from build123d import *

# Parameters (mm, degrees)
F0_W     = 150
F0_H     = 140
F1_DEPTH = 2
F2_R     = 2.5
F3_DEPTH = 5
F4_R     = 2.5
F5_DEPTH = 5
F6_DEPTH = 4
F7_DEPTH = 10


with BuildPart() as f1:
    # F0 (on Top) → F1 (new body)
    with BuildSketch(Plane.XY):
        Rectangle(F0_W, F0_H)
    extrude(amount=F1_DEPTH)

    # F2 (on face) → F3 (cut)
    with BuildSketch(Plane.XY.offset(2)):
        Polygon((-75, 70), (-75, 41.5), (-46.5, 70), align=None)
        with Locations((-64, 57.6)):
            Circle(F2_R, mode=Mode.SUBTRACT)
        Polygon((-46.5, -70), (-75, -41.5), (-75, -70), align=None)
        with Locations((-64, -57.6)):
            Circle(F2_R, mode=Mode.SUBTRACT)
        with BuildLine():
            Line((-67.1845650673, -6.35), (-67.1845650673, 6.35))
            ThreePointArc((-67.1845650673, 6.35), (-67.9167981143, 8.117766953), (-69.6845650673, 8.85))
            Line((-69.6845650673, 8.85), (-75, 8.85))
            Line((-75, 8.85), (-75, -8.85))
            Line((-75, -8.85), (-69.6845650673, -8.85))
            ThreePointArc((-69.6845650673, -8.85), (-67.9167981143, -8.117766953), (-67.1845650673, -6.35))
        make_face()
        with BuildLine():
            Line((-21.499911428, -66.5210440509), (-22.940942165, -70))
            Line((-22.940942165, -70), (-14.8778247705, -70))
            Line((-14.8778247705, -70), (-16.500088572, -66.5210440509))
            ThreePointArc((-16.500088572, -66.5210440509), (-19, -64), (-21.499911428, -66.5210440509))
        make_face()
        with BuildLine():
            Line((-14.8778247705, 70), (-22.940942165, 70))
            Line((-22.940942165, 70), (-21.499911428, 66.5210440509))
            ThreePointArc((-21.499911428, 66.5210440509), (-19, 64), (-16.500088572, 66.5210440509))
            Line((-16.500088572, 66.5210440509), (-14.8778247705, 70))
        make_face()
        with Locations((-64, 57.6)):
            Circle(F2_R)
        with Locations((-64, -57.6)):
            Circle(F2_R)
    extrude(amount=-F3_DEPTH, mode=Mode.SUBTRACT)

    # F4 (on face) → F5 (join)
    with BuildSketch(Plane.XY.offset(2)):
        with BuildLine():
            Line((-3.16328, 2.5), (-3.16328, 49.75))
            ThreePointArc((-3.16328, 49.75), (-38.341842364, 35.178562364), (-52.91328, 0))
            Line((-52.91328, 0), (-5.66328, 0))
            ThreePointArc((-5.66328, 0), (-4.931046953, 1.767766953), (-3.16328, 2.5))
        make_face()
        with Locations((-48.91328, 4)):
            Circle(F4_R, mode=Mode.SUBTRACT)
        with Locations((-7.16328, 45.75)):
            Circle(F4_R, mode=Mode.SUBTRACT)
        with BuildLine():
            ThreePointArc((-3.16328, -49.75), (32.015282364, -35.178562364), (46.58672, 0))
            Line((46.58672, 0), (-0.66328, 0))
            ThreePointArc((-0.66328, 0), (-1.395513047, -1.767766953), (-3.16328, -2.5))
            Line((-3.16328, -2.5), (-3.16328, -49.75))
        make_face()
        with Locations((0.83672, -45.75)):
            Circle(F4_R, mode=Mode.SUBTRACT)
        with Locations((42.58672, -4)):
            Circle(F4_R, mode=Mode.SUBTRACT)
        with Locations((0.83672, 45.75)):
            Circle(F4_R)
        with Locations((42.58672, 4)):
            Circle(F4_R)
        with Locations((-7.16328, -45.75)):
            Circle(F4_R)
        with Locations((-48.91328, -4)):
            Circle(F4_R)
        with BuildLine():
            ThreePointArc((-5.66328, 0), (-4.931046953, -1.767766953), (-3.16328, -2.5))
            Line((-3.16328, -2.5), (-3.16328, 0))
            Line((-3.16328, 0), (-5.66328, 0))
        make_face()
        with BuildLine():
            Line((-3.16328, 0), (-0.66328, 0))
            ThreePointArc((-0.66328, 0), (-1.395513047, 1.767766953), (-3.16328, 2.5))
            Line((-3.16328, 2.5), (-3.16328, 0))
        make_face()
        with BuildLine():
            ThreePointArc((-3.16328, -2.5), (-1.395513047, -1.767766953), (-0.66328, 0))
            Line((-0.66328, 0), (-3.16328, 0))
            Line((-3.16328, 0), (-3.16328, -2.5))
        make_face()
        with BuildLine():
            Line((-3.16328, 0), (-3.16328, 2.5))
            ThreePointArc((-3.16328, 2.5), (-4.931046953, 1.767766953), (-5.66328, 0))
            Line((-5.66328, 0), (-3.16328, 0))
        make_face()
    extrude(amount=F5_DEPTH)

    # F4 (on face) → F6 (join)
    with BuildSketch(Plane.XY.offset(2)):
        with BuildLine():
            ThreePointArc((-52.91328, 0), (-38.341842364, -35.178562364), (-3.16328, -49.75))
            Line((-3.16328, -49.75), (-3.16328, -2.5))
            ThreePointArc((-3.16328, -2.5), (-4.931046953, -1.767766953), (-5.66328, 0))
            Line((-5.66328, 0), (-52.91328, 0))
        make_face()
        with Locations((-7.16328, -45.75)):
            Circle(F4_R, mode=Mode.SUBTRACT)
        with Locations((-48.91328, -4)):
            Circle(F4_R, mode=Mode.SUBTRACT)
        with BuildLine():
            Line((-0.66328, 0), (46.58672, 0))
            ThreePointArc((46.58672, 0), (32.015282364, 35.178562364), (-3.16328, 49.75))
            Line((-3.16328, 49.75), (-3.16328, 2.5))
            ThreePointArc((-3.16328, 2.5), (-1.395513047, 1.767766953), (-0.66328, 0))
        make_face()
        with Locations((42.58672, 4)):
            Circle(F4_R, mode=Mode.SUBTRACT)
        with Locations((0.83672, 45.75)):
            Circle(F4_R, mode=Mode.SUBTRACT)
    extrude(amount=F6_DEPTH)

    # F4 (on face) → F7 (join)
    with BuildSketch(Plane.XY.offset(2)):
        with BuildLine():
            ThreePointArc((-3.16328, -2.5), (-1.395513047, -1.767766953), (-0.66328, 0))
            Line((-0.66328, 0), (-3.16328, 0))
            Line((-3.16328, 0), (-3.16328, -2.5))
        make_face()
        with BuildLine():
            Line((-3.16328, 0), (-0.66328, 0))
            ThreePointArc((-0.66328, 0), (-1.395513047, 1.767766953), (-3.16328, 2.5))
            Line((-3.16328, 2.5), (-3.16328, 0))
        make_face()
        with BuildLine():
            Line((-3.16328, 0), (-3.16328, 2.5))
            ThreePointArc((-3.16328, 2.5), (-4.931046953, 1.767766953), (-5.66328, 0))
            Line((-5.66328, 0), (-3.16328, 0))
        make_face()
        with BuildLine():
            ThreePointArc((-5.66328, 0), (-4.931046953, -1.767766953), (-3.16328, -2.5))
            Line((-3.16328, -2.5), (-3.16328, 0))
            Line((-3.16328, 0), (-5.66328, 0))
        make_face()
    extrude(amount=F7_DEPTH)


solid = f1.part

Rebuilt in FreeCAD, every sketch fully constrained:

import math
import FreeCAD as App
import Part
import Sketcher
Q = App.Units.Quantity


def add_polygon(sketch, points):
    """Adds a closed chain of lines whose ends are joined by coincident constraints."""
    first, n = sketch.GeometryCount, len(points)
    for a, b in zip(points, points[1:] + points[:1]):
        sketch.addGeometry(Part.LineSegment(App.Vector(*a, 0), App.Vector(*b, 0)), False)
    for i in range(n):
        sketch.addConstraint(Sketcher.Constraint("Coincident", first + i, 2, first + (i + 1) % n, 1))

doc = App.newDocument("Part")
params = doc.addObject("Spreadsheet::Sheet", "Params")
for row, (alias, value) in enumerate([
    ("sketch1_width", "150 mm"),
    ("sketch1_height", "140 mm"),
    ("pad1_length", "2 mm"),
    ("sketch2_radius", "2.5 mm"),
    ("sketch2_width", "28.5 mm"),
    ("sketch2_height", "12.7 mm"),
    ("pocket1_length", "5 mm"),
    ("sketch3_diameter", "5 mm"),
    ("sketch3_radius", "49.75 mm"),
    ("pad2_length", "5 mm"),
    ("sketch4_diameter", "5 mm"),
    ("sketch4_radius", "49.75 mm"),
    ("pad3_length", "4 mm"),
    ("sketch5_radius", "2.5 mm"),
    ("pad4_length", "10 mm"),
], start=1):
    params.set(f"A{row}", alias)
    params.set(f"B{row}", "=" + value)
    params.setAlias(f"B{row}", alias)

body = doc.addObject("PartDesign::Body", "Body")

sketch1 = body.newObject("Sketcher::SketchObject", "Sketch")
sketch1.AttachmentSupport = (doc.getObject("XY_Plane"), [""])
sketch1.MapMode = "FlatFace"
add_polygon(sketch1, [(-75, 70), (-75, -70), (75, -70), (75, 70)])
sketch1.addConstraint([
    Sketcher.Constraint("Vertical", 0),
    Sketcher.Constraint("Horizontal", 1),
    Sketcher.Constraint("Vertical", 2),
    Sketcher.Constraint("Horizontal", 3),
    Sketcher.Constraint("Symmetric", 0, 2, 2, 2, -1, 1),
    Sketcher.Constraint("DistanceX", 1, 1, 1, 2, Q("150 mm")),
    Sketcher.Constraint("DistanceY", 0, 2, 0, 1, Q("140 mm")),
])
sketch1.setExpression("Constraints[9]", "Params.sketch1_width")
sketch1.setExpression("Constraints[10]", "Params.sketch1_height")
pad1 = body.newObject("PartDesign::Pad", "Pad")
pad1.Profile = sketch1
pad1.setExpression("Length", "Params.pad1_length")

sketch2 = body.newObject("Sketcher::SketchObject", "Sketch001")
sketch2.AttachmentSupport = (doc.getObject("XY_Plane"), [""])
sketch2.MapMode = "FlatFace"
sketch2.AttachmentOffset = App.Placement(App.Vector(0, 0, 2), App.Rotation())
add_polygon(sketch2, [(-75, 70), (-75, 41.5), (-46.5, 70)])
add_polygon(sketch2, [(-46.5, -70), (-75, -41.5), (-75, -70)])
sketch2.addGeometry(Part.LineSegment(App.Vector(-67.184565, -6.35, 0), App.Vector(-67.184565, 6.35, 0)), False)
sketch2.addGeometry(Part.ArcOfCircle(Part.Circle(App.Vector(-69.684565, 6.35, 0), App.Vector(0, 0, 1), 2.5), math.radians(0), math.radians(90)), False)
sketch2.addGeometry(Part.LineSegment(App.Vector(-69.684565, 8.85, 0), App.Vector(-75, 8.85, 0)), False)
sketch2.addGeometry(Part.LineSegment(App.Vector(-75, 8.85, 0), App.Vector(-75, -8.85, 0)), False)
sketch2.addGeometry(Part.LineSegment(App.Vector(-75, -8.85, 0), App.Vector(-69.684565, -8.85, 0)), False)
sketch2.addGeometry(Part.ArcOfCircle(Part.Circle(App.Vector(-69.684565, -6.35, 0), App.Vector(0, 0, 1), 2.5), math.radians(-90), math.radians(0)), False)
sketch2.addGeometry(Part.LineSegment(App.Vector(-21.499911, -66.521044, 0), App.Vector(-22.940942, -70, 0)), False)
sketch2.addGeometry(Part.LineSegment(App.Vector(-22.940942, -70, 0), App.Vector(-14.877825, -70, 0)), False)
sketch2.addGeometry(Part.LineSegment(App.Vector(-14.877825, -70, 0), App.Vector(-16.500089, -66.521044, 0)), False)
sketch2.addGeometry(Part.ArcOfCircle(Part.Circle(App.Vector(-19, -66.5, 0), App.Vector(0, 0, 1), 2.5), math.radians(-0.4823), math.radians(180.4823)), False)
sketch2.addGeometry(Part.LineSegment(App.Vector(-14.877825, 70, 0), App.Vector(-22.940942, 70, 0)), False)
sketch2.addGeometry(Part.LineSegment(App.Vector(-22.940942, 70, 0), App.Vector(-21.499911, 66.521044, 0)), False)
sketch2.addGeometry(Part.ArcOfCircle(Part.Circle(App.Vector(-19, 66.5, 0), App.Vector(0, 0, 1), 2.5), math.radians(179.5177), math.radians(360.4823)), False)
sketch2.addGeometry(Part.LineSegment(App.Vector(-16.500089, 66.521044, 0), App.Vector(-14.877825, 70, 0)), False)
sketch2.addConstraint([
    Sketcher.Constraint("Tangent", 6, 2, 7, 1),
    Sketcher.Constraint("Tangent", 7, 2, 8, 1),
    Sketcher.Constraint("Coincident", 8, 2, 9, 1),
    Sketcher.Constraint("Coincident", 9, 2, 10, 1),
    Sketcher.Constraint("Tangent", 10, 2, 11, 1),
    Sketcher.Constraint("Tangent", 11, 2, 6, 1),
    Sketcher.Constraint("Coincident", 12, 2, 13, 1),
    Sketcher.Constraint("Coincident", 13, 2, 14, 1),
    Sketcher.Constraint("Coincident", 14, 2, 15, 1),
    Sketcher.Constraint("Coincident", 15, 2, 12, 1),
    Sketcher.Constraint("Coincident", 16, 2, 17, 1),
    Sketcher.Constraint("Coincident", 17, 2, 18, 1),
    Sketcher.Constraint("Coincident", 18, 2, 19, 1),
    Sketcher.Constraint("Coincident", 19, 2, 16, 1),
    Sketcher.Constraint("Vertical", 0),
    Sketcher.Constraint("Horizontal", 2),
    Sketcher.Constraint("Vertical", 4),
    Sketcher.Constraint("Horizontal", 5),
    Sketcher.Constraint("Vertical", 6),
    Sketcher.Constraint("Horizontal", 8),
    Sketcher.Constraint("Vertical", 9),
    Sketcher.Constraint("Horizontal", 10),
    Sketcher.Constraint("Horizontal", 13),
    Sketcher.Constraint("Horizontal", 16),
    Sketcher.Constraint("Equal", 7, 11),
    Sketcher.Constraint("Equal", 11, 15),
    Sketcher.Constraint("Equal", 15, 18),
    Sketcher.Constraint("Symmetric", 15, 3, 18, 3, -1),
    Sketcher.Constraint("Symmetric", 0, 2, 3, 2, -1),
    Sketcher.Constraint("Symmetric", 1, 2, 5, 2, -1),
    Sketcher.Constraint("Symmetric", 12, 2, 16, 2, -1),
    Sketcher.Constraint("Perpendicular", 1, 3),
    Sketcher.Constraint("Horizontal", 5, 2, 12, 2),
    Sketcher.Constraint("Horizontal", 14, 2, 15, 2),
    Sketcher.Constraint("Horizontal", 17, 2, 18, 2),
    Sketcher.Constraint("Vertical", 4, 2, 8, 2),
    Sketcher.Constraint("Vertical", 15, 2, 17, 2),
    Sketcher.Constraint("Vertical", 13, 2, 19, 2),
    Sketcher.Constraint("Radius", 7, Q("2.5 mm")),
    Sketcher.Constraint("Angle", 14, Q("115 deg")),
    Sketcher.Constraint("DistanceX", 2, 2, 2, 1, Q("28.5 mm")),
    Sketcher.Constraint("DistanceY", 6, 1, 6, 2, Q("12.7 mm")),
    Sketcher.Constraint("DistanceX", 15, 3, -1, 1, Q("19 mm")),
    Sketcher.Constraint("DistanceX", 0, 2, -1, 1, Q("75 mm")),
    Sketcher.Constraint("DistanceY", -1, 1, 1, 2, Q("70 mm")),
    Sketcher.Constraint("Angle", 12, Q("-112.5 deg")),
    Sketcher.Constraint("DistanceY", 15, 3, 18, 3, Q("133 mm")),
    Sketcher.Constraint("DistanceY", -1, 1, 7, 3, Q("6.35 mm")),
    Sketcher.Constraint("DistanceX", 8, 2, 8, 1, Q("5.315435 mm")),
    Sketcher.Constraint("DistanceX", 13, 1, 13, 2, Q("8.063117 mm")),
])
sketch2.setExpression("Constraints[44]", "Params.sketch2_radius")
sketch2.setExpression("Constraints[46]", "Params.sketch2_width")
sketch2.setExpression("Constraints[47]", "Params.sketch2_height")
pocket1 = body.newObject("PartDesign::Pocket", "Pocket")
pocket1.Profile = sketch2
pocket1.setExpression("Length", "Params.pocket1_length")

sketch3 = body.newObject("Sketcher::SketchObject", "Sketch002")
sketch3.AttachmentSupport = (doc.getObject("XY_Plane"), [""])
sketch3.MapMode = "FlatFace"
sketch3.AttachmentOffset = App.Placement(App.Vector(0, 0, 2), App.Rotation())
sketch3.addGeometry([
    Part.LineSegment(App.Vector(-3.16328, 2.5, 0), App.Vector(-3.16328, 49.75, 0)),
    Part.ArcOfCircle(Part.Circle(App.Vector(-3.16328, 0, 0), App.Vector(0, 0, 1), 49.75), math.radians(90), math.radians(180)),
    Part.LineSegment(App.Vector(-52.91328, 0, 0), App.Vector(-5.66328, 0, 0)),
    Part.ArcOfCircle(Part.Circle(App.Vector(-3.16328, 0, 0), App.Vector(0, 0, 1), 2.5), math.radians(180), math.radians(270)),
    Part.LineSegment(App.Vector(-3.16328, -2.5, 0), App.Vector(-3.16328, -49.75, 0)),
    Part.ArcOfCircle(Part.Circle(App.Vector(-3.16328, 0, 0), App.Vector(0, 0, 1), 49.75), math.radians(-90), math.radians(0)),
    Part.LineSegment(App.Vector(46.58672, 0, 0), App.Vector(-0.66328, 0, 0)),
    Part.ArcOfCircle(Part.Circle(App.Vector(-3.16328, 0, 0), App.Vector(0, 0, 1), 2.5), math.radians(0), math.radians(90)),
    Part.Circle(App.Vector(-48.91328, 4, 0), App.Vector(0, 0, 1), 2.5),
    Part.Circle(App.Vector(-7.16328, 45.75, 0), App.Vector(0, 0, 1), 2.5),
    Part.Circle(App.Vector(42.58672, -4, 0), App.Vector(0, 0, 1), 2.5),
    Part.Circle(App.Vector(0.83672, -45.75, 0), App.Vector(0, 0, 1), 2.5),
    Part.Circle(App.Vector(0.83672, 45.75, 0), App.Vector(0, 0, 1), 2.5),
    Part.Circle(App.Vector(42.58672, 4, 0), App.Vector(0, 0, 1), 2.5),
    Part.Circle(App.Vector(-7.16328, -45.75, 0), App.Vector(0, 0, 1), 2.5),
    Part.Circle(App.Vector(-48.91328, -4, 0), App.Vector(0, 0, 1), 2.5),
], False)
sketch3.addConstraint([
    Sketcher.Constraint("Coincident", 0, 2, 1, 1),
    Sketcher.Constraint("Coincident", 1, 2, 2, 1),
    Sketcher.Constraint("Coincident", 2, 2, 3, 1),
    Sketcher.Constraint("Coincident", 3, 2, 4, 1),
    Sketcher.Constraint("Coincident", 4, 2, 5, 1),
    Sketcher.Constraint("Coincident", 5, 2, 6, 1),
    Sketcher.Constraint("Coincident", 6, 2, 7, 1),
    Sketcher.Constraint("Coincident", 7, 2, 0, 1),
    Sketcher.Constraint("Vertical", 0),
    Sketcher.Constraint("Horizontal", 2),
    Sketcher.Constraint("Vertical", 4),
    Sketcher.Constraint("Horizontal", 6),
    Sketcher.Constraint("Coincident", 3, 3, 1, 3),
    Sketcher.Constraint("Coincident", 5, 3, 1, 3),
    Sketcher.Constraint("Coincident", 7, 3, 1, 3),
    Sketcher.Constraint("Equal", 1, 5),
    Sketcher.Constraint("Equal", 3, 7),
    Sketcher.Constraint("Equal", 7, 8),
    Sketcher.Constraint("Equal", 8, 9),
    Sketcher.Constraint("Equal", 9, 10),
    Sketcher.Constraint("Equal", 10, 11),
    Sketcher.Constraint("Equal", 11, 12),
    Sketcher.Constraint("Equal", 12, 13),
    Sketcher.Constraint("Equal", 13, 14),
    Sketcher.Constraint("Equal", 14, 15),
    Sketcher.Constraint("Symmetric", 11, 3, 12, 3, -1),
    Sketcher.Constraint("Symmetric", 10, 3, 13, 3, -1),
    Sketcher.Constraint("Symmetric", 9, 3, 14, 3, -1),
    Sketcher.Constraint("Symmetric", 8, 3, 15, 3, -1),
    Sketcher.Constraint("Symmetric", 0, 2, 4, 2, -1),
    Sketcher.Constraint("PointOnObject", 1, 2, -1),
    Sketcher.Constraint("PointOnObject", 5, 2, -1),
    Sketcher.Constraint("Horizontal", 9, 3, 12, 3),
    Sketcher.Constraint("Horizontal", 8, 3, 13, 3),
    Sketcher.Constraint("Vertical", 7, 3, 0, 2),
    Sketcher.Constraint("Diameter", 8, Q("5 mm")),
    Sketcher.Constraint("Radius", 1, Q("49.75 mm")),
    Sketcher.Constraint("DistanceY", -1, 1, 8, 3, Q("4 mm")),
    Sketcher.Constraint("DistanceX", 9, 3, 1, 3, Q("4 mm")),
    Sketcher.Constraint("DistanceX", 1, 3, 11, 3, Q("4 mm")),
    Sketcher.Constraint("DistanceY", 9, 3, 0, 2, Q("4 mm")),
    Sketcher.Constraint("DistanceX", 1, 2, 8, 3, Q("4 mm")),
    Sketcher.Constraint("DistanceX", 10, 3, 5, 2, Q("4 mm")),
    Sketcher.Constraint("DistanceX", 1, 3, -1, 1, Q("3.16328 mm")),
])
sketch3.setExpression("Constraints[35]", "Params.sketch3_diameter")
sketch3.setExpression("Constraints[36]", "Params.sketch3_radius")
pad2 = body.newObject("PartDesign::Pad", "Pad001")
pad2.Profile = sketch3
pad2.setExpression("Length", "Params.pad2_length")

sketch4 = body.newObject("Sketcher::SketchObject", "Sketch003")
sketch4.AttachmentSupport = (doc.getObject("XY_Plane"), [""])
sketch4.MapMode = "FlatFace"
sketch4.AttachmentOffset = App.Placement(App.Vector(0, 0, 2), App.Rotation())
sketch4.addGeometry([
    Part.ArcOfCircle(Part.Circle(App.Vector(-3.16328, 0, 0), App.Vector(0, 0, 1), 49.75), math.radians(180), math.radians(270)),
    Part.LineSegment(App.Vector(-3.16328, -49.75, 0), App.Vector(-3.16328, -2.5, 0)),
    Part.ArcOfCircle(Part.Circle(App.Vector(-3.16328, 0, 0), App.Vector(0, 0, 1), 2.5), math.radians(180), math.radians(270)),
    Part.LineSegment(App.Vector(-5.66328, 0, 0), App.Vector(-52.91328, 0, 0)),
    Part.Circle(App.Vector(-7.16328, -45.75, 0), App.Vector(0, 0, 1), 2.5),
    Part.Circle(App.Vector(-48.91328, -4, 0), App.Vector(0, 0, 1), 2.5),
    Part.LineSegment(App.Vector(-0.66328, 0, 0), App.Vector(46.58672, 0, 0)),
    Part.ArcOfCircle(Part.Circle(App.Vector(-3.16328, 0, 0), App.Vector(0, 0, 1), 49.75), math.radians(0), math.radians(90)),
    Part.LineSegment(App.Vector(-3.16328, 49.75, 0), App.Vector(-3.16328, 2.5, 0)),
    Part.ArcOfCircle(Part.Circle(App.Vector(-3.16328, 0, 0), App.Vector(0, 0, 1), 2.5), math.radians(0), math.radians(90)),
    Part.Circle(App.Vector(42.58672, 4, 0), App.Vector(0, 0, 1), 2.5),
    Part.Circle(App.Vector(0.83672, 45.75, 0), App.Vector(0, 0, 1), 2.5),
], False)
sketch4.addConstraint([
    Sketcher.Constraint("Coincident", 0, 2, 1, 1),
    Sketcher.Constraint("Coincident", 1, 2, 2, 2),
    Sketcher.Constraint("Coincident", 2, 1, 3, 1),
    Sketcher.Constraint("Coincident", 3, 2, 0, 1),
    Sketcher.Constraint("Coincident", 6, 2, 7, 1),
    Sketcher.Constraint("Coincident", 7, 2, 8, 1),
    Sketcher.Constraint("Coincident", 8, 2, 9, 2),
    Sketcher.Constraint("Coincident", 9, 1, 6, 1),
    Sketcher.Constraint("Vertical", 1),
    Sketcher.Constraint("Horizontal", 3),
    Sketcher.Constraint("Horizontal", 6),
    Sketcher.Constraint("Vertical", 8),
    Sketcher.Constraint("Coincident", 2, 3, 0, 3),
    Sketcher.Constraint("Coincident", 7, 3, 0, 3),
    Sketcher.Constraint("Coincident", 9, 3, 0, 3),
    Sketcher.Constraint("Equal", 2, 4),
    Sketcher.Constraint("Equal", 4, 5),
    Sketcher.Constraint("Equal", 0, 7),
    Sketcher.Constraint("Equal", 5, 9),
    Sketcher.Constraint("Equal", 9, 10),
    Sketcher.Constraint("Equal", 10, 11),
    Sketcher.Constraint("Symmetric", 0, 2, 7, 2, -1),
    Sketcher.Constraint("PointOnObject", 2, 1, -1),
    Sketcher.Constraint("PointOnObject", 6, 2, -1),
    Sketcher.Constraint("Vertical", 9, 3, 0, 2),
    Sketcher.Constraint("Diameter", 4, Q("5 mm")),
    Sketcher.Constraint("Radius", 0, Q("49.75 mm")),
    Sketcher.Constraint("DistanceY", 5, 3, -1, 1, Q("4 mm")),
    Sketcher.Constraint("DistanceY", -1, 1, 10, 3, Q("4 mm")),
    Sketcher.Constraint("DistanceX", 4, 3, 0, 3, Q("4 mm")),
    Sketcher.Constraint("DistanceX", 0, 3, 11, 3, Q("4 mm")),
    Sketcher.Constraint("DistanceY", 0, 2, 4, 3, Q("4 mm")),
    Sketcher.Constraint("DistanceX", 3, 2, 5, 3, Q("4 mm")),
    Sketcher.Constraint("DistanceX", 10, 3, 6, 2, Q("4 mm")),
    Sketcher.Constraint("DistanceY", 11, 3, 7, 2, Q("4 mm")),
    Sketcher.Constraint("DistanceX", 0, 3, -1, 1, Q("3.16328 mm")),
])
sketch4.setExpression("Constraints[25]", "Params.sketch4_diameter")
sketch4.setExpression("Constraints[26]", "Params.sketch4_radius")
pad3 = body.newObject("PartDesign::Pad", "Pad002")
pad3.Profile = sketch4
pad3.setExpression("Length", "Params.pad3_length")

sketch5 = body.newObject("Sketcher::SketchObject", "Sketch004")
sketch5.AttachmentSupport = (doc.getObject("XY_Plane"), [""])
sketch5.MapMode = "FlatFace"
sketch5.AttachmentOffset = App.Placement(App.Vector(0, 0, 2), App.Rotation())
sketch5.addGeometry([
    Part.ArcOfCircle(Part.Circle(App.Vector(-3.16328, 0, 0), App.Vector(0, 0, 1), 2.5), math.radians(-90), math.radians(0)),
    Part.ArcOfCircle(Part.Circle(App.Vector(-3.16328, 0, 0), App.Vector(0, 0, 1), 2.5), math.radians(0), math.radians(90)),
    Part.ArcOfCircle(Part.Circle(App.Vector(-3.16328, 0, 0), App.Vector(0, 0, 1), 2.5), math.radians(90), math.radians(180)),
    Part.ArcOfCircle(Part.Circle(App.Vector(-3.16328, 0, 0), App.Vector(0, 0, 1), 2.5), math.radians(180), math.radians(270)),
], False)
sketch5.addConstraint([
    Sketcher.Constraint("Tangent", 0, 2, 1, 1),
    Sketcher.Constraint("Tangent", 1, 2, 2, 1),
    Sketcher.Constraint("Tangent", 2, 2, 3, 1),
    Sketcher.Constraint("Tangent", 3, 2, 0, 1),
    Sketcher.Constraint("Equal", 0, 1),
    Sketcher.Constraint("Symmetric", 1, 2, 3, 2, -1),
    Sketcher.Constraint("PointOnObject", 0, 2, -1),
    Sketcher.Constraint("PointOnObject", 2, 2, -1),
    Sketcher.Constraint("Vertical", 3, 3, 1, 2),
    Sketcher.Constraint("Radius", 0, Q("2.5 mm")),
    Sketcher.Constraint("DistanceX", 0, 3, -1, 1, Q("3.16328 mm")),
])
sketch5.setExpression("Constraints[9]", "Params.sketch5_radius")
pad4 = body.newObject("PartDesign::Pad", "Pad003")
pad4.Profile = sketch5
pad4.setExpression("Length", "Params.pad4_length")

doc.recompute()
